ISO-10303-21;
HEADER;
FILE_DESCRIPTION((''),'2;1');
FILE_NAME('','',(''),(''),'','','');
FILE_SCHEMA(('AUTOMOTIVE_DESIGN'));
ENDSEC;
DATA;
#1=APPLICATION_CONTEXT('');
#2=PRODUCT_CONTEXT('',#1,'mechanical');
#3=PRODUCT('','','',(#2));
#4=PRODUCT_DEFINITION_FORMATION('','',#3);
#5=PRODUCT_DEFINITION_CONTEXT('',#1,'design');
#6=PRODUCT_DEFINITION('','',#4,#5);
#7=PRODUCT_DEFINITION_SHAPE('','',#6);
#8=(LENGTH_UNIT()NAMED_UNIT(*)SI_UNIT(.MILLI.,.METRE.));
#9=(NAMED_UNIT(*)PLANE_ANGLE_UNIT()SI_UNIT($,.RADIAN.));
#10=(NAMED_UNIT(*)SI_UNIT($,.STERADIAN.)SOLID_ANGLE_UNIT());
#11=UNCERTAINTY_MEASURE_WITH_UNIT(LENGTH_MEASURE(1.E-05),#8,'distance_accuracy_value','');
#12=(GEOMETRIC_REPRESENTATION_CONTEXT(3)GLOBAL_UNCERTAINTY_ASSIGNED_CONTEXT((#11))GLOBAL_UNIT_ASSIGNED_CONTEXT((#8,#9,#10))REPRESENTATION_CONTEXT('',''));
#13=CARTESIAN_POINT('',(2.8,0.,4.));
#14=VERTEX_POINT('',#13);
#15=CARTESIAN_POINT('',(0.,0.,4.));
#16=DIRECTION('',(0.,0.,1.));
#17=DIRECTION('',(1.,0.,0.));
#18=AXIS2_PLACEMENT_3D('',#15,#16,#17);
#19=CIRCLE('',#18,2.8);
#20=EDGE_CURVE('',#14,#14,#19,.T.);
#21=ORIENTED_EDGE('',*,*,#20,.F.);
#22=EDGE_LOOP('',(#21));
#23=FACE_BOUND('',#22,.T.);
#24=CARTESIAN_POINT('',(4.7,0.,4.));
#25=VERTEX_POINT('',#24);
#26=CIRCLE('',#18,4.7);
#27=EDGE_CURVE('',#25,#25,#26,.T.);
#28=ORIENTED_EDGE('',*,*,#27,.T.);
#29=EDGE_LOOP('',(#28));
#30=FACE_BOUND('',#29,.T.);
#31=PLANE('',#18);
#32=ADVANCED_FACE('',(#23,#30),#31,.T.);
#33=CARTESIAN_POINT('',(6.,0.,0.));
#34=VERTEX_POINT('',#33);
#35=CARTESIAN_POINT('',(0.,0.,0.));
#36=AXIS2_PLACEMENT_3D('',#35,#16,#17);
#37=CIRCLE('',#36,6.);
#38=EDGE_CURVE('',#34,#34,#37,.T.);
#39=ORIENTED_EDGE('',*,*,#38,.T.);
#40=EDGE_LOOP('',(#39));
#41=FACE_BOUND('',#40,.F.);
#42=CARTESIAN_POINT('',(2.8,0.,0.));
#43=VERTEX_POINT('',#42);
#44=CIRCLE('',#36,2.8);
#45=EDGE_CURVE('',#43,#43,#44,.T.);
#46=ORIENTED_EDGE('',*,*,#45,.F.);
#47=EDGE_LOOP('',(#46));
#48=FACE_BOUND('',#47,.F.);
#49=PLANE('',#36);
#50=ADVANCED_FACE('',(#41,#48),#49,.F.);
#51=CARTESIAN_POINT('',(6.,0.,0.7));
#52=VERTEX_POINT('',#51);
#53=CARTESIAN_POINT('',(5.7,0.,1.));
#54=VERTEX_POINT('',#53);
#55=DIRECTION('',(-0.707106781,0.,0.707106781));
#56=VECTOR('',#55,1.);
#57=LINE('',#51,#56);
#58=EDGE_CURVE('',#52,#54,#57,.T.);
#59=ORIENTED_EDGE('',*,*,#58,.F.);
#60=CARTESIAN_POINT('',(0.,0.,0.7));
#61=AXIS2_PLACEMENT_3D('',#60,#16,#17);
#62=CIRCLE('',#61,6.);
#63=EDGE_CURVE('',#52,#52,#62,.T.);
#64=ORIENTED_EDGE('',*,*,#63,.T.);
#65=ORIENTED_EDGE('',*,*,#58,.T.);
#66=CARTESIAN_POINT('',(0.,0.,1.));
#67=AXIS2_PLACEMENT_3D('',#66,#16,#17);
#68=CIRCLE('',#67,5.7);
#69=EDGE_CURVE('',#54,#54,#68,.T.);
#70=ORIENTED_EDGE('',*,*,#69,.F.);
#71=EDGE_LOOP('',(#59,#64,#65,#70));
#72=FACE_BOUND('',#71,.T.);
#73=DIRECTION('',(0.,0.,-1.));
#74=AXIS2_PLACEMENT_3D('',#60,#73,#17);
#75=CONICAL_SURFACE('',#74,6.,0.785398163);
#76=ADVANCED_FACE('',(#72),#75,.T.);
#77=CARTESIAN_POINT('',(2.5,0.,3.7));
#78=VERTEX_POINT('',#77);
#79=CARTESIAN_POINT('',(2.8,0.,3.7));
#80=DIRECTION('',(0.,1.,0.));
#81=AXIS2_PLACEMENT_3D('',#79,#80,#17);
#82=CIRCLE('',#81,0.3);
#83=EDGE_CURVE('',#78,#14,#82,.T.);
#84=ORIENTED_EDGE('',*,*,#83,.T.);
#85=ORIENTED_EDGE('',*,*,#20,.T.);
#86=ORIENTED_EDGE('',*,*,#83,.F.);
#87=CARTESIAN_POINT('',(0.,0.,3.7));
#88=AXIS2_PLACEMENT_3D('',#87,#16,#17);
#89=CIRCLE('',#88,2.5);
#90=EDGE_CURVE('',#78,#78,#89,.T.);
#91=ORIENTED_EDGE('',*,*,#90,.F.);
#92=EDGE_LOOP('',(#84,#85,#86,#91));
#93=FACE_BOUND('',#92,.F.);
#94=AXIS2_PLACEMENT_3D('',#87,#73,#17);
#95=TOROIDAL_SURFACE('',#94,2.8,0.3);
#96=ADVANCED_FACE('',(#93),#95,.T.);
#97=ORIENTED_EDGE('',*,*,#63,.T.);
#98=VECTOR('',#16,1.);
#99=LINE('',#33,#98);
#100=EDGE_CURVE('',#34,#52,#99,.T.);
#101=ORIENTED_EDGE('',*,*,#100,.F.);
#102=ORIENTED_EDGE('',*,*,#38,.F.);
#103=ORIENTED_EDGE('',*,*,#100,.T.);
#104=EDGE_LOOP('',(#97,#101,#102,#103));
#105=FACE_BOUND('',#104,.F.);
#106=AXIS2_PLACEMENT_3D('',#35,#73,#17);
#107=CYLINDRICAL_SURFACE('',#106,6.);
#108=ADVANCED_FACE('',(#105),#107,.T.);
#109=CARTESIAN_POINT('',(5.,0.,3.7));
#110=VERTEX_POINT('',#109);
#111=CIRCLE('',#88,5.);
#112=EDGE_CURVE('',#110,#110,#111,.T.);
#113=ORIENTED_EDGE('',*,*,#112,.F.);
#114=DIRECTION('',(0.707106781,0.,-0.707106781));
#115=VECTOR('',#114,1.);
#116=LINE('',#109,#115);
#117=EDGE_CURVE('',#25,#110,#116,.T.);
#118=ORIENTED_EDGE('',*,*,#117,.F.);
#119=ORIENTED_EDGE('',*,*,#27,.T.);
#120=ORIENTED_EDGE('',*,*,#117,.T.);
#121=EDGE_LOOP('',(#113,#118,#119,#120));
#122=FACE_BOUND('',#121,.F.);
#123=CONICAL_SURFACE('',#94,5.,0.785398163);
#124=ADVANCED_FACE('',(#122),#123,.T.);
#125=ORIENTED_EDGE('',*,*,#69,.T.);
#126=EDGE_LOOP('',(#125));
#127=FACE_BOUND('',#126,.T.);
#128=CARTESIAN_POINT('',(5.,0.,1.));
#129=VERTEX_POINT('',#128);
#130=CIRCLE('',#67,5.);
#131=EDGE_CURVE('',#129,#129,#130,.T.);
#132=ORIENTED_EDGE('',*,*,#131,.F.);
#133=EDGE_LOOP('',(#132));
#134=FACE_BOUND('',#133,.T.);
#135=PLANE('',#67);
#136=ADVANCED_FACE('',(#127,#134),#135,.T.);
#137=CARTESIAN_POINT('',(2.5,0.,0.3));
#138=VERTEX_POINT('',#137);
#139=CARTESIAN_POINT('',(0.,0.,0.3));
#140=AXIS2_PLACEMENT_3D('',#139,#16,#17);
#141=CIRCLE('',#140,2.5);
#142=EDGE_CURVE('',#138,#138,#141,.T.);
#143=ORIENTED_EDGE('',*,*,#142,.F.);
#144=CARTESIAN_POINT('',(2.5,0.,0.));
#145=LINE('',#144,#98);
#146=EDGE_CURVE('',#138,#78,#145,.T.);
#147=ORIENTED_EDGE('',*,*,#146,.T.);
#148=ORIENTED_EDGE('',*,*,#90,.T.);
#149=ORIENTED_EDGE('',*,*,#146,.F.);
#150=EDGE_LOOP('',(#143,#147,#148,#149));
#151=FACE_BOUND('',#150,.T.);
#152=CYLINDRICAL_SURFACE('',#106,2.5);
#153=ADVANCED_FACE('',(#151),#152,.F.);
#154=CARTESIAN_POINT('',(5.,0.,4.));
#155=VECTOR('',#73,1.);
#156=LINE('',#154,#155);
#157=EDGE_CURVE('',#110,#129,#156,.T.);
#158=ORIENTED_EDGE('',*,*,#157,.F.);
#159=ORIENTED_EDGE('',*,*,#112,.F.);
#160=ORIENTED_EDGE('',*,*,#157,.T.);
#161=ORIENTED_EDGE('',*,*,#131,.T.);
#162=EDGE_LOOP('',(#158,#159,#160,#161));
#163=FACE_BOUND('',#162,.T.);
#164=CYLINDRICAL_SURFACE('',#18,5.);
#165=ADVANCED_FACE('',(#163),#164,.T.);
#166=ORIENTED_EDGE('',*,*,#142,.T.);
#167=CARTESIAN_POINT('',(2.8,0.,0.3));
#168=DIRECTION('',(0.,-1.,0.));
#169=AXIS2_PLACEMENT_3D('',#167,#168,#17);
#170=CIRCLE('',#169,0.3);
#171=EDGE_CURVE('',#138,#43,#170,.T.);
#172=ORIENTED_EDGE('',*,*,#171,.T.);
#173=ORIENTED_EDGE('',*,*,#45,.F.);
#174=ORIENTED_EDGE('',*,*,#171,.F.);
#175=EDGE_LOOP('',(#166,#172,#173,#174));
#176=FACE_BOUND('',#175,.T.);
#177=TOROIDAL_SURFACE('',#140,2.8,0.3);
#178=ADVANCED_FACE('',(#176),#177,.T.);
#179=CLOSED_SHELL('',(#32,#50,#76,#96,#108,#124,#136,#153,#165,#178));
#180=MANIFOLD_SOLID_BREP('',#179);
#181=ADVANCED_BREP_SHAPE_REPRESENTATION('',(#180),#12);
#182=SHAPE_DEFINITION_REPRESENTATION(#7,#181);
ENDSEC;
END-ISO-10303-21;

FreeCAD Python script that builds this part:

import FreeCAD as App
import Part
import Sketcher
from FreeCAD import Vector


def edges_at(feature, points):
    """Names of the edges that pass closest to the given points."""
    edges = feature.Shape.Edges
    near = lambda p: min(range(len(edges)), key=lambda i: edges[i].distToShape(Part.Vertex(*p))[0])
    return sorted({f"Edge{near(p) + 1}" for p in points})

doc = App.newDocument("Part")
params = doc.addObject("Spreadsheet::Sheet", "Params")
for row, (alias, value) in enumerate([
    ("sketch1_diameter", "12 mm"),
    ("sketch1_diameter2", "5 mm"),
    ("pad1_length", "4 mm"),
    ("fillet_radius", "0.3 mm"),
    ("sketch2_diameter", "12 mm"),
    ("sketch2_diameter2", "10 mm"),
    ("pocket1_length", "3 mm"),
    ("chamfer_size", "0.3 mm"),
], start=1):
    params.set(f"A{row}", alias)
    params.set(f"B{row}", "=" + value)
    params.setAlias(f"B{row}", alias)

body = doc.addObject("PartDesign::Body", "Body")

sketch1 = body.newObject("Sketcher::SketchObject", "Sketch")
sketch1.AttachmentSupport = (doc.getObject("XY_Plane"), [""])
sketch1.MapMode = "FlatFace"
sketch1.addGeometry(Part.Circle(Vector(0, 0, 0), Vector(0, 0, 1), 6), False)
sketch1.addGeometry(Part.Circle(Vector(0, 0, 0), Vector(0, 0, 1), 2.5), False)
sketch1.addConstraint(Sketcher.Constraint("Coincident", 0, 3, -1, 1))
sketch1.addConstraint(Sketcher.Constraint("Coincident", 1, 3, -1, 1))
sketch1.addConstraint(Sketcher.Constraint("Diameter", 0, 12.0))
sketch1.addConstraint(Sketcher.Constraint("Diameter", 1, 5.0))
sketch1.setExpression("Constraints[2]", "Params.sketch1_diameter")
sketch1.setExpression("Constraints[3]", "Params.sketch1_diameter2")
pad1 = body.newObject("PartDesign::Pad", "Pad")
pad1.Profile = sketch1
pad1.setExpression("Length", "Params.pad1_length")
doc.recompute()

fillet = body.newObject("PartDesign::Fillet", "Fillet")
fillet.Base = (pad1, edges_at(pad1, [(-2.5, 0, 4), (-2.5, 0, 0)]))
fillet.setExpression("Radius", "Params.fillet_radius")

sketch2 = body.newObject("Sketcher::SketchObject", "Sketch001")
sketch2.AttachmentSupport = (doc.getObject("XY_Plane"), [""])
sketch2.MapMode = "FlatFace"
sketch2.AttachmentOffset = App.Placement(Vector(0, 0, 4), App.Rotation())
sketch2.addGeometry(Part.Circle(Vector(0, 0, 0), Vector(0, 0, 1), 6), False)
sketch2.addGeometry(Part.Circle(Vector(0, 0, 0), Vector(0, 0, 1), 5), False)
sketch2.addConstraint(Sketcher.Constraint("Coincident", 0, 3, -1, 1))
sketch2.addConstraint(Sketcher.Constraint("Coincident", 1, 3, -1, 1))
sketch2.addConstraint(Sketcher.Constraint("Diameter", 0, 12.0))
sketch2.addConstraint(Sketcher.Constraint("Diameter", 1, 10.0))
sketch2.setExpression("Constraints[2]", "Params.sketch2_diameter")
sketch2.setExpression("Constraints[3]", "Params.sketch2_diameter2")
pocket1 = body.newObject("PartDesign::Pocket", "Pocket")
pocket1.Profile = sketch2
pocket1.setExpression("Length", "Params.pocket1_length")
doc.recompute()

chamfer = body.newObject("PartDesign::Chamfer", "Chamfer")
chamfer.Base = (pocket1, edges_at(pocket1, [(-5, 0, 4), (-6, 0, 1)]))
chamfer.setExpression("Size", "Params.chamfer_size")

doc.recompute()
